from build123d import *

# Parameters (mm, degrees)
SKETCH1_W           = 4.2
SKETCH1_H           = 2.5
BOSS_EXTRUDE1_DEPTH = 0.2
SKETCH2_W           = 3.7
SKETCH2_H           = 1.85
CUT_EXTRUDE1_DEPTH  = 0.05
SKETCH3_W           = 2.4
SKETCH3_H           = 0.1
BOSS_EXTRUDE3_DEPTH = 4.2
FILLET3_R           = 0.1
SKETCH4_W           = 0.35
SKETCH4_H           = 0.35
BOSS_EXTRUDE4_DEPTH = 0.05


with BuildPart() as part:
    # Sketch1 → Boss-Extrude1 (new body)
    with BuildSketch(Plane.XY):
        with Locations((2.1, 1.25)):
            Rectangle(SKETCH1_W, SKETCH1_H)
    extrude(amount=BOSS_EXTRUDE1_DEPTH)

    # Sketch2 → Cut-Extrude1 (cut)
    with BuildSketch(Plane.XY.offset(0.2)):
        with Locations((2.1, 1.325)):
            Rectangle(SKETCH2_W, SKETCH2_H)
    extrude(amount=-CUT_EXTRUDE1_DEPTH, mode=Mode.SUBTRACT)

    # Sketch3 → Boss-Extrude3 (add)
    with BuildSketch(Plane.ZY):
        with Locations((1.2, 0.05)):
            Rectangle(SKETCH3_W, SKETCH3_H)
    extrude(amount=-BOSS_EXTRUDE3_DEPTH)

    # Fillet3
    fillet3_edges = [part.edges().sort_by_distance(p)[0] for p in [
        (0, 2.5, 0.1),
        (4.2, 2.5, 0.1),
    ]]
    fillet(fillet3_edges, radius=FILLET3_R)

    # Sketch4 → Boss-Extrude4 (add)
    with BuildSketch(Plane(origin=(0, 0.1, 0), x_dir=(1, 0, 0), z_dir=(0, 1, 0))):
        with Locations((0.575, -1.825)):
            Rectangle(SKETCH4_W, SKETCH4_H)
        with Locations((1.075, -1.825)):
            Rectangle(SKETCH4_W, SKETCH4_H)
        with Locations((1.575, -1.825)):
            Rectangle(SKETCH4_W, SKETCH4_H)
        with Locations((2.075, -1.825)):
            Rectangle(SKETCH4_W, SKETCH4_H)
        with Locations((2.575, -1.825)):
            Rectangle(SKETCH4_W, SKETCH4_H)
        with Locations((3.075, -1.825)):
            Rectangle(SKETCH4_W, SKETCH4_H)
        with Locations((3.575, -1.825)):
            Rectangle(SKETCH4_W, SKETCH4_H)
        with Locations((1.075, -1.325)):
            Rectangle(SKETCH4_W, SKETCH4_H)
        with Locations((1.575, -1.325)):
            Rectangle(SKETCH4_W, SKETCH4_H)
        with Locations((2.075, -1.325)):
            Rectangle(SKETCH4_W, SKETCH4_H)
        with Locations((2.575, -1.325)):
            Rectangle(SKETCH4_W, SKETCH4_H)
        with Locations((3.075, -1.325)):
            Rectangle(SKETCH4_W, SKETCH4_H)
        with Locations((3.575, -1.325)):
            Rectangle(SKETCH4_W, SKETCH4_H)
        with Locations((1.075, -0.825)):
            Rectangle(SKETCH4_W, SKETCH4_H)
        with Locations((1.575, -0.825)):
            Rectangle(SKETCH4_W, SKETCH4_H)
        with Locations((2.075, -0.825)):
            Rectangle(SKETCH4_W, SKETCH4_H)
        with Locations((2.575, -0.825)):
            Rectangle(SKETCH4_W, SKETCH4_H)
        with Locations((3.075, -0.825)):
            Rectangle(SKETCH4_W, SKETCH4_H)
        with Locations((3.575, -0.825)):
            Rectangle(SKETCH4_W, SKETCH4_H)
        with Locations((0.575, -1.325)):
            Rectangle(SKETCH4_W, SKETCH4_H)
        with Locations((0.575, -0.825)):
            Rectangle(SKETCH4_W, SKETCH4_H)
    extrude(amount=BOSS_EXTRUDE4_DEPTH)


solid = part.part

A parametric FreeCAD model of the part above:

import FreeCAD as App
import Part
import Sketcher
from FreeCAD import Vector
Q = App.Units.Quantity


def edges_at(feature, points):
    """Names of the edges that pass closest to the given points."""
    edges = feature.Shape.Edges
    near = lambda p: min(range(len(edges)), key=lambda i: edges[i].distToShape(Part.Vertex(*p))[0])
    return sorted({f"Edge{near(p) + 1}" for p in points})


def add_polygon(sketch, points):
    """Adds a closed chain of lines whose ends are joined by coincident constraints."""
    first, n = sketch.GeometryCount, len(points)
    for a, b in zip(points, points[1:] + points[:1]):
        sketch.addGeometry(Part.LineSegment(App.Vector(*a, 0), App.Vector(*b, 0)), False)
    for i in range(n):
        sketch.addConstraint(Sketcher.Constraint("Coincident", first + i, 2, first + (i + 1) % n, 1))

doc = App.newDocument("Part")
body = doc.addObject("PartDesign::Body", "Body")

# Sketch on XY plane
sketch1 = doc.addObject("Sketcher::SketchObject", "Sketch")
body.addObject(sketch1)
sketch1.AttachmentSupport = (doc.XY_Plane, [""])
sketch1.MapMode = "FlatFace"
add_polygon(sketch1, [(0, 2.5), (0, 0), (4.2, 0), (4.2, 2.5)])  # lines 0-3
sketch1.addConstraint([
    Sketcher.Constraint("Vertical", 0),
    Sketcher.Constraint("Horizontal", 1),
    Sketcher.Constraint("Vertical", 2),
    Sketcher.Constraint("Horizontal", 3),
    Sketcher.Constraint("Coincident", 0, 2, -1, 1),
    Sketcher.Constraint("DistanceX", 1, 1, 1, 2, Q("4.2 mm")),
    Sketcher.Constraint("DistanceY", 0, 2, 0, 1, Q("2.5 mm")),
])
pad1 = doc.addObject("PartDesign::Pad", "Pad")
body.addObject(pad1)
pad1.Profile = sketch1
pad1.Length = 0.2

# Sketch on XY plane
sketch2 = doc.addObject("Sketcher::SketchObject", "Sketch001")
body.addObject(sketch2)
sketch2.AttachmentSupport = (doc.XY_Plane, [""])
sketch2.MapMode = "FlatFace"
sketch2.AttachmentOffset = App.Placement(Vector(0, 0, 0.2), App.Rotation())
add_polygon(sketch2, [(0.2, 2.2), (0.2, 0.4), (4, 0.4), (4, 2.2)])  # lines 0-3
sketch2.addConstraint([
    Sketcher.Constraint("Vertical", 0),
    Sketcher.Constraint("Horizontal", 1),
    Sketcher.Constraint("Vertical", 2),
    Sketcher.Constraint("Horizontal", 3),
    Sketcher.Constraint("DistanceX", 1, 1, 1, 2, Q("3.7 mm")),
    Sketcher.Constraint("DistanceY", 0, 2, 0, 1, Q("1.85 mm")),
    Sketcher.Constraint("DistanceY", -1, 1, 0, 2, Q("0.4 mm")),
    Sketcher.Constraint("DistanceX", -1, 1, 0, 2, Q("0.25 mm")),
])
pocket1 = doc.addObject("PartDesign::Pocket", "Pocket")
body.addObject(pocket1)
pocket1.Profile = sketch2
pocket1.Length = 0.05

# Sketch on YZ plane
sketch3 = doc.addObject("Sketcher::SketchObject", "Sketch002")
body.addObject(sketch3)
sketch3.AttachmentSupport = (doc.YZ_Plane, [""])
sketch3.MapMode = "FlatFace"
add_polygon(sketch3, [(0.1, 0), (0, 0), (0, 2.4), (0.1, 2.4)])  # lines 0-3
sketch3.addConstraint([
    Sketcher.Constraint("Horizontal", 0),
    Sketcher.Constraint("Vertical", 1),
    Sketcher.Constraint("Horizontal", 2),
    Sketcher.Constraint("Vertical", 3),
    Sketcher.Constraint("Coincident", 0, 2, -1, 1),
    Sketcher.Constraint("DistanceX", 0, 2, 0, 1, Q("0.1 mm")),
    Sketcher.Constraint("DistanceY", 1, 1, 1, 2, Q("2.4 mm")),
])
pad2 = doc.addObject("PartDesign::Pad", "Pad001")
body.addObject(pad2)
pad2.Profile = sketch3
pad2.Length = 4.2
doc.recompute()

fillet = doc.addObject("PartDesign::Fillet", "Fillet")
body.addObject(fillet)
fillet.Base = (pad2, edges_at(pad2, [(0, 2.5, 0.1), (4.2, 2.5, 0.1)]))
fillet.Radius = 0.1

# Sketch on XZ plane
sketch4 = doc.addObject("Sketcher::SketchObject", "Sketch003")
body.addObject(sketch4)
sketch4.AttachmentSupport = (doc.XZ_Plane, [""])
sketch4.MapMode = "FlatFace"
sketch4.AttachmentOffset = App.Placement(Vector(0, 0, -0.1), App.Rotation())
add_polygon(sketch4, [(0.4, 1.65), (0.4, 2), (0.75, 2), (0.75, 1.65)])  # lines 0-3
add_polygon(sketch4, [(0.9, 1.65), (0.9, 2), (1.25, 2), (1.25, 1.65)])  # lines 4-7
add_polygon(sketch4, [(1.4, 1.65), (1.4, 2), (1.75, 2), (1.75, 1.65)])  # lines 8-11
add_polygon(sketch4, [(1.9, 1.65), (1.9, 2), (2.25, 2), (2.25, 1.65)])  # lines 12-15
add_polygon(sketch4, [(2.4, 1.65), (2.4, 2), (2.75, 2), (2.75, 1.65)])  # lines 16-19
add_polygon(sketch4, [(2.9, 1.65), (2.9, 2), (3.25, 2), (3.25, 1.65)])  # lines 20-23
add_polygon(sketch4, [(3.4, 1.65), (3.4, 2), (3.75, 2), (3.75, 1.65)])  # lines 24-27
add_polygon(sketch4, [(0.9, 1.15), (0.9, 1.5), (1.25, 1.5), (1.25, 1.15)])  # lines 28-31
add_polygon(sketch4, [(1.4, 1.15), (1.4, 1.5), (1.75, 1.5), (1.75, 1.15)])  # lines 32-35
add_polygon(sketch4, [(1.9, 1.15), (1.9, 1.5), (2.25, 1.5), (2.25, 1.15)])  # lines 36-39
add_polygon(sketch4, [(2.4, 1.15), (2.4, 1.5), (2.75, 1.5), (2.75, 1.15)])  # lines 40-43
add_polygon(sketch4, [(2.9, 1.15), (2.9, 1.5), (3.25, 1.5), (3.25, 1.15)])  # lines 44-47
add_polygon(sketch4, [(3.4, 1.15), (3.4, 1.5), (3.75, 1.5), (3.75, 1.15)])  # lines 48-51
add_polygon(sketch4, [(0.9, 0.65), (0.9, 1), (1.25, 1), (1.25, 0.65)])  # lines 52-55
add_polygon(sketch4, [(1.4, 0.65), (1.4, 1), (1.75, 1), (1.75, 0.65)])  # lines 56-59
add_polygon(sketch4, [(1.9, 0.65), (1.9, 1), (2.25, 1), (2.25, 0.65)])  # lines 60-63
add_polygon(sketch4, [(2.4, 0.65), (2.4, 1), (2.75, 1), (2.75, 0.65)])  # lines 64-67
add_polygon(sketch4, [(2.9, 0.65), (2.9, 1), (3.25, 1), (3.25, 0.65)])  # lines 68-71
add_polygon(sketch4, [(3.4, 0.65), (3.4, 1), (3.75, 1), (3.75, 0.65)])  # lines 72-75
add_polygon(sketch4, [(0.4, 1.15), (0.4, 1.5), (0.75, 1.5), (0.75, 1.15)])  # lines 76-79
add_polygon(sketch4, [(0.4, 0.65), (0.4, 1), (0.75, 1), (0.75, 0.65)])  # lines 80-83
sketch4.addConstraint([
    Sketcher.Constraint("Vertical", 0),
    Sketcher.Constraint("Horizontal", 1),
    Sketcher.Constraint("Vertical", 2),
    Sketcher.Constraint("Horizontal", 3),
    Sketcher.Constraint("Vertical", 4),
    Sketcher.Constraint("Horizontal", 5),
    Sketcher.Constraint("Vertical", 6),
    Sketcher.Constraint("Horizontal", 7),
    Sketcher.Constraint("Vertical", 8),
    Sketcher.Constraint("Horizontal", 9),
    Sketcher.Constraint("Vertical", 10),
    Sketcher.Constraint("Horizontal", 11),
    Sketcher.Constraint("Vertical", 12),
    Sketcher.Constraint("Horizontal", 13),
    Sketcher.Constraint("Vertical", 14),
    Sketcher.Constraint("Horizontal", 15),
    Sketcher.Constraint("Vertical", 16),
    Sketcher.Constraint("Horizontal", 17),
    Sketcher.Constraint("Vertical", 18),
    Sketcher.Constraint("Horizontal", 19),
    Sketcher.Constraint("Vertical", 20),
    Sketcher.Constraint("Horizontal", 21),
    Sketcher.Constraint("Vertical", 22),
    Sketcher.Constraint("Horizontal", 23),
    Sketcher.Constraint("Vertical", 24),
    Sketcher.Constraint("Horizontal", 25),
    Sketcher.Constraint("Vertical", 26),
    Sketcher.Constraint("Horizontal", 27),
    Sketcher.Constraint("Vertical", 28),
    Sketcher.Constraint("Horizontal", 29),
    Sketcher.Constraint("Vertical", 30),
    Sketcher.Constraint("Horizontal", 31),
    Sketcher.Constraint("Vertical", 32),
    Sketcher.Constraint("Horizontal", 33),
    Sketcher.Constraint("Vertical", 34),
    Sketcher.Constraint("Horizontal", 35),
    Sketcher.Constraint("Vertical", 36),
    Sketcher.Constraint("Horizontal", 37),
    Sketcher.Constraint("Vertical", 38),
    Sketcher.Constraint("Horizontal", 39),
    Sketcher.Constraint("Vertical", 40),
    Sketcher.Constraint("Horizontal", 41),
    Sketcher.Constraint("Vertical", 42),
    Sketcher.Constraint("Horizontal", 43),
    Sketcher.Constraint("Vertical", 44),
    Sketcher.Constraint("Horizontal", 45),
    Sketcher.Constraint("Vertical", 46),
    Sketcher.Constraint("Horizontal", 47),
    Sketcher.Constraint("Vertical", 48),
    Sketcher.Constraint("Horizontal", 49),
    Sketcher.Constraint("Vertical", 50),
    Sketcher.Constraint("Horizontal", 51),
    Sketcher.Constraint("Vertical", 52),
    Sketcher.Constraint("Horizontal", 53),
    Sketcher.Constraint("Vertical", 54),
    Sketcher.Constraint("Horizontal", 55),
    Sketcher.Constraint("Vertical", 56),
    Sketcher.Constraint("Horizontal", 57),
    Sketcher.Constraint("Vertical", 58),
    Sketcher.Constraint("Horizontal", 59),
    Sketcher.Constraint("Vertical", 60),
    Sketcher.Constraint("Horizontal", 61),
    Sketcher.Constraint("Vertical", 62),
    Sketcher.Constraint("Horizontal", 63),
    Sketcher.Constraint("Vertical", 64),
    Sketcher.Constraint("Horizontal", 65),
    Sketcher.Constraint("Vertical", 66),
    Sketcher.Constraint("Horizontal", 67),
    Sketcher.Constraint("Vertical", 68),
    Sketcher.Constraint("Horizontal", 69),
    Sketcher.Constraint("Vertical", 70),
    Sketcher.Constraint("Horizontal", 71),
    Sketcher.Constraint("Vertical", 72),
    Sketcher.Constraint("Horizontal", 73),
    Sketcher.Constraint("Vertical", 74),
    Sketcher.Constraint("Horizontal", 75),
    Sketcher.Constraint("Vertical", 76),
    Sketcher.Constraint("Horizontal", 77),
    Sketcher.Constraint("Vertical", 78),
    Sketcher.Constraint("Horizontal", 79),
    Sketcher.Constraint("Vertical", 80),
    Sketcher.Constraint("Horizontal", 81),
    Sketcher.Constraint("Vertical", 82),
    Sketcher.Constraint("Horizontal", 83),
    Sketcher.Constraint("Horizontal", 1, 2, 4, 2),
    Sketcher.Constraint("Horizontal", 3, 2, 6, 2),
    Sketcher.Constraint("Horizontal", 5, 2, 8, 2),
    Sketcher.Constraint("Horizontal", 7, 2, 10, 2),
    Sketcher.Constraint("Horizontal", 9, 2, 12, 2),
    Sketcher.Constraint("Horizontal", 11, 2, 14, 2),
    Sketcher.Constraint("Horizontal", 13, 2, 16, 2),
    Sketcher.Constraint("Horizontal", 15, 2, 18, 2),
    Sketcher.Constraint("Horizontal", 17, 2, 20, 2),
    Sketcher.Constraint("Horizontal", 19, 2, 22, 2),
    Sketcher.Constraint("Horizontal", 21, 2, 24, 2),
    Sketcher.Constraint("Horizontal", 23, 2, 26, 2),
    Sketcher.Constraint("Horizontal", 29, 2, 32, 2),
    Sketcher.Constraint("Horizontal", 31, 2, 34, 2),
    Sketcher.Constraint("Horizontal", 33, 2, 36, 2),
    Sketcher.Constraint("Horizontal", 35, 2, 38, 2),
    Sketcher.Constraint("Horizontal", 37, 2, 40, 2),
    Sketcher.Constraint("Horizontal", 39, 2, 42, 2),
    Sketcher.Constraint("Horizontal", 41, 2, 44, 2),
    Sketcher.Constraint("Horizontal", 43, 2, 46, 2),
    Sketcher.Constraint("Horizontal", 45, 2, 48, 2),
    Sketcher.Constraint("Horizontal", 47, 2, 50, 2),
    Sketcher.Constraint("Horizontal", 53, 2, 56, 2),
    Sketcher.Constraint("Horizontal", 55, 2, 58, 2),
    Sketcher.Constraint("Horizontal", 57, 2, 60, 2),
    Sketcher.Constraint("Horizontal", 59, 2, 62, 2),
    Sketcher.Constraint("Horizontal", 61, 2, 64, 2),
    Sketcher.Constraint("Horizontal", 63, 2, 66, 2),
    Sketcher.Constraint("Horizontal", 65, 2, 68, 2),
    Sketcher.Constraint("Horizontal", 67, 2, 70, 2),
    Sketcher.Constraint("Horizontal", 69, 2, 72, 2),
    Sketcher.Constraint("Horizontal", 71, 2, 74, 2),
    Sketcher.Constraint("Horizontal", 49, 2, 76, 2),
    Sketcher.Constraint("Horizontal", 51, 2, 78, 2),
    Sketcher.Constraint("Horizontal", 73, 2, 80, 2),
    Sketcher.Constraint("Horizontal", 75, 2, 82, 2),
    Sketcher.Constraint("Vertical", 7, 2, 28, 2),
    Sketcher.Constraint("Vertical", 6, 2, 29, 2),
    Sketcher.Constraint("Vertical", 11, 2, 32, 2),
    Sketcher.Constraint("Vertical", 10, 2, 33, 2),
    Sketcher.Constraint("Vertical", 15, 2, 36, 2),
    Sketcher.Constraint("Vertical", 14, 2, 37, 2),
    Sketcher.Constraint("Vertical", 19, 2, 40, 2),
    Sketcher.Constraint("Vertical", 18, 2, 41, 2),
    Sketcher.Constraint("Vertical", 23, 2, 44, 2),
    Sketcher.Constraint("Vertical", 22, 2, 45, 2),
    Sketcher.Constraint("Vertical", 27, 2, 48, 2),
    Sketcher.Constraint("Vertical", 26, 2, 49, 2),
    Sketcher.Constraint("Vertical", 31, 2, 52, 2),
    Sketcher.Constraint("Vertical", 30, 2, 53, 2),
    Sketcher.Constraint("Vertical", 35, 2, 56, 2),
    Sketcher.Constraint("Vertical", 34, 2, 57, 2),
    Sketcher.Constraint("Vertical", 39, 2, 60, 2),
    Sketcher.Constraint("Vertical", 38, 2, 61, 2),
    Sketcher.Constraint("Vertical", 43, 2, 64, 2),
    Sketcher.Constraint("Vertical", 42, 2, 65, 2),
    Sketcher.Constraint("Vertical", 47, 2, 68, 2),
    Sketcher.Constraint("Vertical", 46, 2, 69, 2),
    Sketcher.Constraint("Vertical", 51, 2, 72, 2),
    Sketcher.Constraint("Vertical", 50, 2, 73, 2),
    Sketcher.Constraint("Vertical", 3, 2, 76, 2),
    Sketcher.Constraint("Vertical", 2, 2, 77, 2),
    Sketcher.Constraint("Vertical", 79, 2, 80, 2),
    Sketcher.Constraint("Vertical", 78, 2, 81, 2),
    Sketcher.Constraint("Equal", 3, 5),
    Sketcher.Constraint("Equal", 7, 9),
    Sketcher.Constraint("Equal", 11, 13),
    Sketcher.Constraint("Equal", 15, 17),
    Sketcher.Constraint("Equal", 19, 21),
    Sketcher.Constraint("Equal", 23, 25),
    Sketcher.Constraint("Equal", 83, 0),
    Sketcher.Constraint("Equal", 26, 28),
    Sketcher.Constraint("Equal", 50, 52),
    Sketcher.Constraint("DistanceY", -1, 1, 0, 2, Q("2 mm")),
    Sketcher.Constraint("DistanceY", -1, 1, 52, 2, Q("1 mm")),
    Sketcher.Constraint("DistanceX", 1, 1, 1, 2, Q("0.35 mm")),
    Sketcher.Constraint("DistanceX", -1, 1, 0, 2, Q("0.4 mm")),
    Sketcher.Constraint("DistanceX", -1, 1, 4, 2, Q("0.9 mm")),
    Sketcher.Constraint("DistanceX", -1, 1, 8, 2, Q("1.4 mm")),
    Sketcher.Constraint("DistanceX", -1, 1, 12, 2, Q("1.9 mm")),
    Sketcher.Constraint("DistanceX", -1, 1, 16, 2, Q("2.4 mm")),
    Sketcher.Constraint("DistanceX", -1, 1, 20, 2, Q("2.9 mm")),
    Sketcher.Constraint("DistanceX", -1, 1, 24, 2, Q("3.4 mm")),
    Sketcher.Constraint("DistanceY", -1, 1, 28, 2, Q("1.5 mm")),
])
pad3 = doc.addObject("PartDesign::Pad", "Pad002")
body.addObject(pad3)
pad3.Profile = sketch4
pad3.Length = 0.05
pad3.Reversed = True

doc.recompute()
